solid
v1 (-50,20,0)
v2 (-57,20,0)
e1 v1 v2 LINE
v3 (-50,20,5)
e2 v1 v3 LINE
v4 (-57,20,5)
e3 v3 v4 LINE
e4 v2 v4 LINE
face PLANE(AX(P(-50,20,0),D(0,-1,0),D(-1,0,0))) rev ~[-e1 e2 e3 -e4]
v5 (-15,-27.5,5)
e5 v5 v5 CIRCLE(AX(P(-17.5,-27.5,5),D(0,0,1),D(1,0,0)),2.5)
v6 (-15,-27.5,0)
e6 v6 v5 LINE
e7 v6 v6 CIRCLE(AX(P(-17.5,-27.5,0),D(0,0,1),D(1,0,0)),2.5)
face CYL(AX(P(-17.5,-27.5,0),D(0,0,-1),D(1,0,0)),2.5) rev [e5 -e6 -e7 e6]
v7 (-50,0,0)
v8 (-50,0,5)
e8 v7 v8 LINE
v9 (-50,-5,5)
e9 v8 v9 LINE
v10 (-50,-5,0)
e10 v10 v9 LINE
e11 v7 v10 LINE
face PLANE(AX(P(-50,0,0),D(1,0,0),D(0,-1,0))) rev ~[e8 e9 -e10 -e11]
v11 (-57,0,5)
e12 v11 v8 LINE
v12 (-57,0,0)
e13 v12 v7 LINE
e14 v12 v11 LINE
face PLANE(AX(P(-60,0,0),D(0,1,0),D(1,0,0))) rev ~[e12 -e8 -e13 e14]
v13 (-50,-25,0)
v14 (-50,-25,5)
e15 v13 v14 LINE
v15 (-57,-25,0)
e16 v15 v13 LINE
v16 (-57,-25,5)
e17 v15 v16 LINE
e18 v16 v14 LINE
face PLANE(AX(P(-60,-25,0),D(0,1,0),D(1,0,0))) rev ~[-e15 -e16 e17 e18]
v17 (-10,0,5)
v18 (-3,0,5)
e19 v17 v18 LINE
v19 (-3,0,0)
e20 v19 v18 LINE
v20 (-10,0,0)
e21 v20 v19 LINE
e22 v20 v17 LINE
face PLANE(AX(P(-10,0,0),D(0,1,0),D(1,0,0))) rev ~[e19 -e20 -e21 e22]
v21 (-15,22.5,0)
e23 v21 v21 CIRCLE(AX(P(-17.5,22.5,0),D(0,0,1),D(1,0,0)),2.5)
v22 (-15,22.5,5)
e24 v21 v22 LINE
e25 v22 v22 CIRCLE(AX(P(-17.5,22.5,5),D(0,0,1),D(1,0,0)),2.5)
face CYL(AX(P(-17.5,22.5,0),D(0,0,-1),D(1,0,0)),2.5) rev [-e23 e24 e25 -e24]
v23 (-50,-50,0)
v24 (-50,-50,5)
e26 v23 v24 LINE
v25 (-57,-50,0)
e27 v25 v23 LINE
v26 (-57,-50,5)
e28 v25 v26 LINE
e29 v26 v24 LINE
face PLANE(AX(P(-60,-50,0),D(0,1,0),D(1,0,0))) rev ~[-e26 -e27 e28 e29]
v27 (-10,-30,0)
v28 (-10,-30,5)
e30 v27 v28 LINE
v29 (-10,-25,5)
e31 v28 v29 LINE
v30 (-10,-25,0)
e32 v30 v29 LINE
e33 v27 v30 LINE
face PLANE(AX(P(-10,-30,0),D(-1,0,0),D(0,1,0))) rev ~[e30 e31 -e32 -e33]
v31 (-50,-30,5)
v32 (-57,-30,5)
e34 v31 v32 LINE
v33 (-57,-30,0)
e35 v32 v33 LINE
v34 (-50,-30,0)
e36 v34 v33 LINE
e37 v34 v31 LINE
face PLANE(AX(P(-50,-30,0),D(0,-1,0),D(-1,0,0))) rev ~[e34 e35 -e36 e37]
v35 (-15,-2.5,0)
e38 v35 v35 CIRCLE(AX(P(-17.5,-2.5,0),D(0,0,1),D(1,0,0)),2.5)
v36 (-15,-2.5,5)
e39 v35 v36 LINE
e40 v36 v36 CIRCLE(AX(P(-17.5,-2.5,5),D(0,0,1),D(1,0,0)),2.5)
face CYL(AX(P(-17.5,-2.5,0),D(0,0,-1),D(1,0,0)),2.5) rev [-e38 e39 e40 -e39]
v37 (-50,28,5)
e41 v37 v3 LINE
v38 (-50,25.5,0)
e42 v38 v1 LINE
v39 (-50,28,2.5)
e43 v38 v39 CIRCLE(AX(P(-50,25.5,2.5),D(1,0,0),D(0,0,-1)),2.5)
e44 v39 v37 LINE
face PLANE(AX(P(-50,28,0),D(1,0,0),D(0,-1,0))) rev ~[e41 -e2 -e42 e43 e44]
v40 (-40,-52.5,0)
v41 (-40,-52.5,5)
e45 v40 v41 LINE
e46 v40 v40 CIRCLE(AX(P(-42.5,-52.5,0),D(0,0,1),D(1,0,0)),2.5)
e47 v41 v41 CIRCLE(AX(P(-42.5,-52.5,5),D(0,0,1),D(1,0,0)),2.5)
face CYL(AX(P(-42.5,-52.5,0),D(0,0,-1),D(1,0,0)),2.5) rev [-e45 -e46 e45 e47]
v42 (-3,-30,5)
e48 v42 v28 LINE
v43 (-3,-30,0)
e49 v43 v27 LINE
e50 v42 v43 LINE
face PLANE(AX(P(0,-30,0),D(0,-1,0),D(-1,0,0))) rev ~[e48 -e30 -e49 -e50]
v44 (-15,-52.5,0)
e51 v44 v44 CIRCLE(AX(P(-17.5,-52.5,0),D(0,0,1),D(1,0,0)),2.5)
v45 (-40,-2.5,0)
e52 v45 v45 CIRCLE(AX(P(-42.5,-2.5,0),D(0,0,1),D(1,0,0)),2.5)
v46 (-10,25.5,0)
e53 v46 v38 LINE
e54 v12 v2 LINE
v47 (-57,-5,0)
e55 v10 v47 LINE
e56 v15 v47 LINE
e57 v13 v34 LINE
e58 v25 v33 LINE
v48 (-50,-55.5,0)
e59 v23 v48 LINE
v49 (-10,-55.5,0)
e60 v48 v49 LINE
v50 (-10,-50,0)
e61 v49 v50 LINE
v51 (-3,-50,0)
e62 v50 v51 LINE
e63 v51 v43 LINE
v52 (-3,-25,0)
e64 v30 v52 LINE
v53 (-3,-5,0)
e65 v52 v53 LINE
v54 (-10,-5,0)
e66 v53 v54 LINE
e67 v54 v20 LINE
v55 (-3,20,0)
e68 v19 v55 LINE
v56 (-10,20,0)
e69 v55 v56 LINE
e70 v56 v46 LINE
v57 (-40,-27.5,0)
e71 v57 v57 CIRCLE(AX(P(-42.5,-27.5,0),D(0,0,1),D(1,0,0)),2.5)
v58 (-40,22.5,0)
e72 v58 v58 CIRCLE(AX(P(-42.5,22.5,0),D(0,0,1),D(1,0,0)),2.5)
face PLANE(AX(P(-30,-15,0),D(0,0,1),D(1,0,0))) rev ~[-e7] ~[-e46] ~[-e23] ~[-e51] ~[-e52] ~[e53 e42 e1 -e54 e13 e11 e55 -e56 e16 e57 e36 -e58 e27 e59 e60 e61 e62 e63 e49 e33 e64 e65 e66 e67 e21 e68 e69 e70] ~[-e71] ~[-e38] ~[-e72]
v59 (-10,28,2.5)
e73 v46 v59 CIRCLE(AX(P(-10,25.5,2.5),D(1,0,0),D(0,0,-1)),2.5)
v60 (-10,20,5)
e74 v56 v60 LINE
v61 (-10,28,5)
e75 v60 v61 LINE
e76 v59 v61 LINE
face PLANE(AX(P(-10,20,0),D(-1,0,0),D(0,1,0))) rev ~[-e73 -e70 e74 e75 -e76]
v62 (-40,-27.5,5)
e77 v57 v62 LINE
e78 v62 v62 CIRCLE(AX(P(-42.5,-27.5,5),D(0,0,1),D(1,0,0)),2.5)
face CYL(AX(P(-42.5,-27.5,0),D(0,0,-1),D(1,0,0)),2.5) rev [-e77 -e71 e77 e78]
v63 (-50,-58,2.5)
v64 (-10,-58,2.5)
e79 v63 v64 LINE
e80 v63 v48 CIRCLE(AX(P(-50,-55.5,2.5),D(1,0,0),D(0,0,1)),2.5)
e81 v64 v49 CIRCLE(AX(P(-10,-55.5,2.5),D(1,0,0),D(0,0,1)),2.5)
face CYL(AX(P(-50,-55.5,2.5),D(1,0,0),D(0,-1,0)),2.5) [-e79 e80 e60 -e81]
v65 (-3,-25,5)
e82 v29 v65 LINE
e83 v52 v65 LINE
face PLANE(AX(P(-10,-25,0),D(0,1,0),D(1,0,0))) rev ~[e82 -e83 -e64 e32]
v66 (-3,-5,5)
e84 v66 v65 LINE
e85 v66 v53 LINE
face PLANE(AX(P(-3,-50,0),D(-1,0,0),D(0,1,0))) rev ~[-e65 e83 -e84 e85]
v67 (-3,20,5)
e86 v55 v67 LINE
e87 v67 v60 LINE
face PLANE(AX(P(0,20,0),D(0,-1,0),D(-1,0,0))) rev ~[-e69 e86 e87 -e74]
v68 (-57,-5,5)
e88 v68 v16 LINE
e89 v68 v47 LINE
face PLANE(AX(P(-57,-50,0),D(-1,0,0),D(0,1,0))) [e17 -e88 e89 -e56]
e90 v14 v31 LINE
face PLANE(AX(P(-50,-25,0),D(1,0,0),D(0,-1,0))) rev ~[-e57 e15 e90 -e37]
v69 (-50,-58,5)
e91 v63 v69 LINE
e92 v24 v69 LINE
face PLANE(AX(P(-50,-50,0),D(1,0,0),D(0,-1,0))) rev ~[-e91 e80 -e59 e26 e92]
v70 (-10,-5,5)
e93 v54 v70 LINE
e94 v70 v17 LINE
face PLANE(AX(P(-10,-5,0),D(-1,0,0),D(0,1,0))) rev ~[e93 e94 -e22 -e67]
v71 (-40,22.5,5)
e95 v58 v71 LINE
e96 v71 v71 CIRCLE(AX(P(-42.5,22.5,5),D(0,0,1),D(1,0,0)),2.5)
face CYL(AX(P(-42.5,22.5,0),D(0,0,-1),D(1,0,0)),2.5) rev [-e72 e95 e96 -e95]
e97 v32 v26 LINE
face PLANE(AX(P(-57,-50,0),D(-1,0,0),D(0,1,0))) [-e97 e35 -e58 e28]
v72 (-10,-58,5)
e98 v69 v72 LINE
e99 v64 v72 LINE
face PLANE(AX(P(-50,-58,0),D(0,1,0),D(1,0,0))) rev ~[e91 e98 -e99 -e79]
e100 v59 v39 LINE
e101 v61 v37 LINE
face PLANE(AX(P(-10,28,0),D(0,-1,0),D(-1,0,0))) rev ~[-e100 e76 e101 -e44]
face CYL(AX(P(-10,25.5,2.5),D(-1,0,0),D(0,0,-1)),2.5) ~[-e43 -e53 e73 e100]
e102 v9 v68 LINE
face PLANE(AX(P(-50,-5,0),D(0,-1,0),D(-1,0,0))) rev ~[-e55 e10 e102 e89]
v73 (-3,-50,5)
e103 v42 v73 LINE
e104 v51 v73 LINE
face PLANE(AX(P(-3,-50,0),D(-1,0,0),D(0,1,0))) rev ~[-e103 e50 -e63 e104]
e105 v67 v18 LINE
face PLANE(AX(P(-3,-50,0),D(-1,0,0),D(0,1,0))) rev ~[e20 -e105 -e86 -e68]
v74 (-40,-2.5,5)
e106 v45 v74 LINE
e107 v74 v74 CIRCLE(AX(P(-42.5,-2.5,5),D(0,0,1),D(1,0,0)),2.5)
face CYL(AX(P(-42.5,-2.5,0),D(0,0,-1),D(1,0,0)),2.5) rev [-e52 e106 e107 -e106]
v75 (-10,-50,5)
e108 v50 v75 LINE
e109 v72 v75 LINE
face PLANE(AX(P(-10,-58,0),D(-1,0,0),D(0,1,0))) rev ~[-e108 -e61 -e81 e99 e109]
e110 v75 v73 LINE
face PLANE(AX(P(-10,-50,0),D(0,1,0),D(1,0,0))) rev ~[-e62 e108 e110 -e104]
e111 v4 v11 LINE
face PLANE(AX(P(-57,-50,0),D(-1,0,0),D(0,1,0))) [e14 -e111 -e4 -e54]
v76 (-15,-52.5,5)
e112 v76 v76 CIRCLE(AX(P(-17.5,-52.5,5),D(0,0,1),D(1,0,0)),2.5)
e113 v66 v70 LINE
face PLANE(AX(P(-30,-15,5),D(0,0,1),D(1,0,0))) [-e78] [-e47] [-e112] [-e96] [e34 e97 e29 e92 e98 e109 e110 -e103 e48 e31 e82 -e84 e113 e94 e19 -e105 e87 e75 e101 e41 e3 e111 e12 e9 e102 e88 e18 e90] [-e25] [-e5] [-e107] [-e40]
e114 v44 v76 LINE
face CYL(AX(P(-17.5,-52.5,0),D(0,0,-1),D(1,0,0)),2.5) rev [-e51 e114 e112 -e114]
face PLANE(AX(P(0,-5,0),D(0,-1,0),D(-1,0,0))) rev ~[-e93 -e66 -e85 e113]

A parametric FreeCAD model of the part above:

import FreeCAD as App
import Part
import Sketcher

V = App.Vector


def edges_at(feature, points):
    """Names of the edges that pass closest to the given points."""
    edges = feature.Shape.Edges
    near = lambda p: min(range(len(edges)), key=lambda i: edges[i].distToShape(Part.Vertex(*p))[0])
    return sorted({f"Edge{near(p) + 1}" for p in points})

doc = App.newDocument("Part")
body = doc.addObject("PartDesign::Body", "Body")

# Sketch on XY plane
sketch1 = body.newObject("Sketcher::SketchObject", "Sketch")
sketch1.AttachmentSupport = (doc.getObject("XY_Plane"), [""])
sketch1.MapMode = "FlatFace"
sketch1.addGeometry(Part.LineSegment(V(-50, 20, 0), V(-60, 20, 0)), False)
sketch1.addGeometry(Part.LineSegment(V(-60, 20, 0), V(-60, 0, 0)), False)
sketch1.addGeometry(Part.LineSegment(V(-60, 0, 0), V(-50, 0, 0)), False)
sketch1.addGeometry(Part.LineSegment(V(-50, 0, 0), V(-50, -5, 0)), False)
sketch1.addGeometry(Part.LineSegment(V(-50, -5, 0), V(-60, -5, 0)), False)
sketch1.addGeometry(Part.LineSegment(V(-60, -5, 0), V(-60, -25, 0)), False)
sketch1.addGeometry(Part.LineSegment(V(-60, -25, 0), V(-50, -25, 0)), False)
sketch1.addGeometry(Part.LineSegment(V(-50, -25, 0), V(-50, -30, 0)), False)
sketch1.addGeometry(Part.LineSegment(V(-50, -30, 0), V(-60, -30, 0)), False)
sketch1.addGeometry(Part.LineSegment(V(-60, -30, 0), V(-60, -50, 0)), False)
sketch1.addGeometry(Part.LineSegment(V(-60, -50, 0), V(-50, -50, 0)), False)
sketch1.addGeometry(Part.LineSegment(V(-50, -50, 0), V(-50, -58, 0)), False)
sketch1.addGeometry(Part.LineSegment(V(-50, -58, 0), V(-10, -58, 0)), False)
sketch1.addGeometry(Part.LineSegment(V(-10, -58, 0), V(-10, -50, 0)), False)
sketch1.addGeometry(Part.LineSegment(V(-10, -50, 0), V(0, -50, 0)), False)
sketch1.addGeometry(Part.LineSegment(V(0, -50, 0), V(0, -30, 0)), False)
sketch1.addGeometry(Part.LineSegment(V(0, -30, 0), V(-10, -30, 0)), False)
sketch1.addGeometry(Part.LineSegment(V(-10, -30, 0), V(-10, -25, 0)), False)
sketch1.addGeometry(Part.LineSegment(V(-10, -25, 0), V(0, -25, 0)), False)
sketch1.addGeometry(Part.LineSegment(V(0, -25, 0), V(0, -5, 0)), False)
sketch1.addGeometry(Part.LineSegment(V(0, -5, 0), V(-10, -5, 0)), False)
sketch1.addGeometry(Part.LineSegment(V(-10, -5, 0), V(-10, 0, 0)), False)
sketch1.addGeometry(Part.LineSegment(V(-10, 0, 0), V(0, 0, 0)), False)
sketch1.addGeometry(Part.LineSegment(V(0, 0, 0), V(0, 20, 0)), False)
sketch1.addGeometry(Part.LineSegment(V(0, 20, 0), V(-10, 20, 0)), False)
sketch1.addGeometry(Part.LineSegment(V(-10, 20, 0), V(-10, 28, 0)), False)
sketch1.addGeometry(Part.LineSegment(V(-10, 28, 0), V(-50, 28, 0)), False)
sketch1.addGeometry(Part.LineSegment(V(-50, 28, 0), V(-50, 20, 0)), False)
sketch1.addGeometry(Part.Circle(V(-42.5, -52.5, 0), V(0, 0, 1), 2.5), False)
sketch1.addGeometry(Part.Circle(V(-42.5, -27.5, 0), V(0, 0, 1), 2.5), False)
sketch1.addGeometry(Part.Circle(V(-17.5, -52.5, 0), V(0, 0, 1), 2.5), False)
sketch1.addGeometry(Part.Circle(V(-17.5, -27.5, 0), V(0, 0, 1), 2.5), False)
sketch1.addGeometry(Part.Circle(V(-42.5, -2.5, 0), V(0, 0, 1), 2.5), False)
sketch1.addGeometry(Part.Circle(V(-42.5, 22.5, 0), V(0, 0, 1), 2.5), False)
sketch1.addGeometry(Part.Circle(V(-17.5, -2.5, 0), V(0, 0, 1), 2.5), False)
sketch1.addGeometry(Part.Circle(V(-17.5, 22.5, 0), V(0, 0, 1), 2.5), False)
sketch1.addConstraint(Sketcher.Constraint("Coincident", 0, 2, 1, 1))
sketch1.addConstraint(Sketcher.Constraint("Coincident", 1, 2, 2, 1))
sketch1.addConstraint(Sketcher.Constraint("Coincident", 2, 2, 3, 1))
sketch1.addConstraint(Sketcher.Constraint("Coincident", 3, 2, 4, 1))
sketch1.addConstraint(Sketcher.Constraint("Coincident", 4, 2, 5, 1))
sketch1.addConstraint(Sketcher.Constraint("Coincident", 5, 2, 6, 1))
sketch1.addConstraint(Sketcher.Constraint("Coincident", 6, 2, 7, 1))
sketch1.addConstraint(Sketcher.Constraint("Coincident", 7, 2, 8, 1))
sketch1.addConstraint(Sketcher.Constraint("Coincident", 8, 2, 9, 1))
sketch1.addConstraint(Sketcher.Constraint("Coincident", 9, 2, 10, 1))
sketch1.addConstraint(Sketcher.Constraint("Coincident", 10, 2, 11, 1))
sketch1.addConstraint(Sketcher.Constraint("Coincident", 11, 2, 12, 1))
sketch1.addConstraint(Sketcher.Constraint("Coincident", 12, 2, 13, 1))
sketch1.addConstraint(Sketcher.Constraint("Coincident", 13, 2, 14, 1))
sketch1.addConstraint(Sketcher.Constraint("Coincident", 14, 2, 15, 1))
sketch1.addConstraint(Sketcher.Constraint("Coincident", 15, 2, 16, 1))
sketch1.addConstraint(Sketcher.Constraint("Coincident", 16, 2, 17, 1))
sketch1.addConstraint(Sketcher.Constraint("Coincident", 17, 2, 18, 1))
sketch1.addConstraint(Sketcher.Constraint("Coincident", 18, 2, 19, 1))
sketch1.addConstraint(Sketcher.Constraint("Coincident", 19, 2, 20, 1))
sketch1.addConstraint(Sketcher.Constraint("Coincident", 20, 2, 21, 1))
sketch1.addConstraint(Sketcher.Constraint("Coincident", 21, 2, 22, 1))
sketch1.addConstraint(Sketcher.Constraint("Coincident", 22, 2, 23, 1))
sketch1.addConstraint(Sketcher.Constraint("Coincident", 23, 2, 24, 1))
sketch1.addConstraint(Sketcher.Constraint("Coincident", 24, 2, 25, 1))
sketch1.addConstraint(Sketcher.Constraint("Coincident", 25, 2, 26, 1))
sketch1.addConstraint(Sketcher.Constraint("Coincident", 26, 2, 27, 1))
sketch1.addConstraint(Sketcher.Constraint("Coincident", 27, 2, 0, 1))
sketch1.addConstraint(Sketcher.Constraint("Horizontal", 0))
sketch1.addConstraint(Sketcher.Constraint("Vertical", 1))
sketch1.addConstraint(Sketcher.Constraint("Horizontal", 2))
sketch1.addConstraint(Sketcher.Constraint("Vertical", 3))
sketch1.addConstraint(Sketcher.Constraint("Horizontal", 4))
sketch1.addConstraint(Sketcher.Constraint("Vertical", 5))
sketch1.addConstraint(Sketcher.Constraint("Horizontal", 6))
sketch1.addConstraint(Sketcher.Constraint("Vertical", 7))
sketch1.addConstraint(Sketcher.Constraint("Horizontal", 8))
sketch1.addConstraint(Sketcher.Constraint("Vertical", 9))
sketch1.addConstraint(Sketcher.Constraint("Horizontal", 10))
sketch1.addConstraint(Sketcher.Constraint("Vertical", 11))
sketch1.addConstraint(Sketcher.Constraint("Horizontal", 12))
sketch1.addConstraint(Sketcher.Constraint("Vertical", 13))
sketch1.addConstraint(Sketcher.Constraint("Horizontal", 14))
sketch1.addConstraint(Sketcher.Constraint("Vertical", 15))
sketch1.addConstraint(Sketcher.Constraint("Horizontal", 16))
sketch1.addConstraint(Sketcher.Constraint("Vertical", 17))
sketch1.addConstraint(Sketcher.Constraint("Horizontal", 18))
sketch1.addConstraint(Sketcher.Constraint("Vertical", 19))
sketch1.addConstraint(Sketcher.Constraint("Horizontal", 20))
sketch1.addConstraint(Sketcher.Constraint("Vertical", 21))
sketch1.addConstraint(Sketcher.Constraint("Horizontal", 22))
sketch1.addConstraint(Sketcher.Constraint("Vertical", 23))
sketch1.addConstraint(Sketcher.Constraint("Horizontal", 24))
sketch1.addConstraint(Sketcher.Constraint("Vertical", 25))
sketch1.addConstraint(Sketcher.Constraint("Horizontal", 26))
sketch1.addConstraint(Sketcher.Constraint("Vertical", 27))
sketch1.addConstraint(Sketcher.Constraint("Coincident", 22, 2, -1, 1))
sketch1.addConstraint(Sketcher.Constraint("Equal", 28, 29))
sketch1.addConstraint(Sketcher.Constraint("Equal", 29, 30))
sketch1.addConstraint(Sketcher.Constraint("Equal", 30, 31))
sketch1.addConstraint(Sketcher.Constraint("Equal", 31, 32))
sketch1.addConstraint(Sketcher.Constraint("Equal", 32, 33))
sketch1.addConstraint(Sketcher.Constraint("Equal", 33, 34))
sketch1.addConstraint(Sketcher.Constraint("Equal", 34, 35))
sketch1.addConstraint(Sketcher.Constraint("PointOnObject", 1, 2, -1))
sketch1.addConstraint(Sketcher.Constraint("PointOnObject", 14, 2, -2))
sketch1.addConstraint(Sketcher.Constraint("PointOnObject", 18, 2, -2))
sketch1.addConstraint(Sketcher.Constraint("Horizontal", 28, 3, 30, 3))
sketch1.addConstraint(Sketcher.Constraint("Horizontal", 29, 3, 31, 3))
sketch1.addConstraint(Sketcher.Constraint("Horizontal", 32, 3, 34, 3))
sketch1.addConstraint(Sketcher.Constraint("Horizontal", 33, 3, 35, 3))
sketch1.addConstraint(Sketcher.Constraint("Horizontal", 10, 2, 13, 2))
sketch1.addConstraint(Sketcher.Constraint("Horizontal", 8, 2, 15, 2))
sketch1.addConstraint(Sketcher.Constraint("Horizontal", 6, 2, 17, 2))
sketch1.addConstraint(Sketcher.Constraint("Horizontal", 4, 2, 19, 2))
sketch1.addConstraint(Sketcher.Constraint("Horizontal", 0, 2, 23, 2))
sketch1.addConstraint(Sketcher.Constraint("Vertical", 28, 3, 29, 3))
sketch1.addConstraint(Sketcher.Constraint("Vertical", 30, 3, 31, 3))
sketch1.addConstraint(Sketcher.Constraint("Vertical", 29, 3, 32, 3))
sketch1.addConstraint(Sketcher.Constraint("Vertical", 32, 3, 33, 3))
sketch1.addConstraint(Sketcher.Constraint("Vertical", 31, 3, 34, 3))
sketch1.addConstraint(Sketcher.Constraint("Vertical", 34, 3, 35, 3))
sketch1.addConstraint(Sketcher.Constraint("Vertical", 1, 2, 4, 2))
sketch1.addConstraint(Sketcher.Constraint("Vertical", 3, 2, 6, 2))
sketch1.addConstraint(Sketcher.Constraint("Vertical", 5, 2, 8, 2))
sketch1.addConstraint(Sketcher.Constraint("Vertical", 7, 2, 10, 2))
sketch1.addConstraint(Sketcher.Constraint("Vertical", 13, 2, 16, 2))
sketch1.addConstraint(Sketcher.Constraint("Vertical", 17, 2, 20, 2))
sketch1.addConstraint(Sketcher.Constraint("Vertical", 21, 2, 24, 2))
sketch1.addConstraint(Sketcher.Constraint("Vertical", 11, 2, 26, 2))
sketch1.addConstraint(Sketcher.Constraint("Equal", 10, 14))
sketch1.addConstraint(Sketcher.Constraint("Equal", 1, 5))
sketch1.addConstraint(Sketcher.Constraint("Equal", 3, 7))
sketch1.addConstraint(Sketcher.Constraint("Equal", 5, 9))
sketch1.addConstraint(Sketcher.Constraint("Equal", 13, 25))
sketch1.addConstraint(Sketcher.Constraint("Diameter", 28, 5.0))
sketch1.addConstraint(Sketcher.Constraint("DistanceX", 0, 2, 0, 1, 10.0))
sketch1.addConstraint(Sketcher.Constraint("DistanceX", 12, 1, 12, 2, 40.0))
sketch1.addConstraint(Sketcher.Constraint("DistanceY", 1, 2, 1, 1, 20.0))
sketch1.addConstraint(Sketcher.Constraint("DistanceY", 3, 2, 3, 1, 5.0))
sketch1.addConstraint(Sketcher.Constraint("DistanceY", 11, 2, 11, 1, 8.0))
sketch1.addConstraint(Sketcher.Constraint("DistanceY", 28, 3, 29, 3, 25.0))
sketch1.addConstraint(Sketcher.Constraint("DistanceX", 28, 3, 30, 3, 25.0))
sketch1.addConstraint(Sketcher.Constraint("DistanceY", 29, 3, 32, 3, 25.0))
sketch1.addConstraint(Sketcher.Constraint("DistanceY", 32, 3, 33, 3, 25.0))
sketch1.addConstraint(Sketcher.Constraint("DistanceX", 28, 3, -1, 1, 42.5))
sketch1.addConstraint(Sketcher.Constraint("DistanceY", 28, 3, -1, 1, 52.5))
pad1 = body.newObject("PartDesign::Pad", "Pad")
pad1.Profile = sketch1
pad1.Length = 5
doc.recompute()

fillet = body.newObject("PartDesign::Fillet", "Fillet")
fillet.Base = (pad1, edges_at(pad1, [(-30, -58, 0)]))
fillet.Radius = 2.5
doc.recompute()

fillet2 = body.newObject("PartDesign::Fillet", "Fillet001")
fillet2.Base = (fillet, edges_at(fillet, [(-30, 28, 0)]))
fillet2.Radius = 2.5

# Sketch on XY plane
sketch2 = body.newObject("Sketcher::SketchObject", "Sketch001")
sketch2.AttachmentSupport = (doc.getObject("XY_Plane"), [""])
sketch2.MapMode = "FlatFace"
sketch2.addGeometry(Part.LineSegment(V(-57, 20, 0), V(-57, -50, 0)), False)
sketch2.addGeometry(Part.LineSegment(V(-57, -50, 0), V(-60, -50, 0)), False)
sketch2.addGeometry(Part.LineSegment(V(-60, -50, 0), V(-60, 20, 0)), False)
sketch2.addGeometry(Part.LineSegment(V(-60, 20, 0), V(-57, 20, 0)), False)
sketch2.addGeometry(Part.LineSegment(V(0, 20, 0), V(0, -50, 0)), False)
sketch2.addGeometry(Part.LineSegment(V(0, -50, 0), V(-3, -50, 0)), False)
sketch2.addGeometry(Part.LineSegment(V(-3, -50, 0), V(-3, 20, 0)), False)
sketch2.addGeometry(Part.LineSegment(V(-3, 20, 0), V(0, 20, 0)), False)
sketch2.addConstraint(Sketcher.Constraint("Coincident", 0, 2, 1, 1))
sketch2.addConstraint(Sketcher.Constraint("Coincident", 1, 2, 2, 1))
sketch2.addConstraint(Sketcher.Constraint("Coincident", 2, 2, 3, 1))
sketch2.addConstraint(Sketcher.Constraint("Coincident", 3, 2, 0, 1))
sketch2.addConstraint(Sketcher.Constraint("Coincident", 4, 2, 5, 1))
sketch2.addConstraint(Sketcher.Constraint("Coincident", 5, 2, 6, 1))
sketch2.addConstraint(Sketcher.Constraint("Coincident", 6, 2, 7, 1))
sketch2.addConstraint(Sketcher.Constraint("Coincident", 7, 2, 4, 1))
sketch2.addConstraint(Sketcher.Constraint("Vertical", 0))
sketch2.addConstraint(Sketcher.Constraint("Horizontal", 1))
sketch2.addConstraint(Sketcher.Constraint("Vertical", 2))
sketch2.addConstraint(Sketcher.Constraint("Horizontal", 3))
sketch2.addConstraint(Sketcher.Constraint("Vertical", 4))
sketch2.addConstraint(Sketcher.Constraint("Horizontal", 5))
sketch2.addConstraint(Sketcher.Constraint("Vertical", 6))
sketch2.addConstraint(Sketcher.Constraint("Horizontal", 7))
sketch2.addConstraint(Sketcher.Constraint("PointOnObject", 4, 2, -2))
sketch2.addConstraint(Sketcher.Constraint("Horizontal", 1, 2, 4, 2))
sketch2.addConstraint(Sketcher.Constraint("Horizontal", 3, 2, 6, 2))
sketch2.addConstraint(Sketcher.Constraint("Equal", 3, 5))
sketch2.addConstraint(Sketcher.Constraint("DistanceX", 1, 2, 1, 1, 3.0))
sketch2.addConstraint(Sketcher.Constraint("DistanceY", 0, 2, 0, 1, 70.0))
sketch2.addConstraint(Sketcher.Constraint("DistanceX", 0, 2, -1, 1, 57.0))
sketch2.addConstraint(Sketcher.Constraint("DistanceY", 0, 2, -1, 1, 50.0))
pocket1 = body.newObject("PartDesign::Pocket", "Pocket")
pocket1.Profile = sketch2
pocket1.Length = 10
pocket1.Reversed = True

doc.recompute()
